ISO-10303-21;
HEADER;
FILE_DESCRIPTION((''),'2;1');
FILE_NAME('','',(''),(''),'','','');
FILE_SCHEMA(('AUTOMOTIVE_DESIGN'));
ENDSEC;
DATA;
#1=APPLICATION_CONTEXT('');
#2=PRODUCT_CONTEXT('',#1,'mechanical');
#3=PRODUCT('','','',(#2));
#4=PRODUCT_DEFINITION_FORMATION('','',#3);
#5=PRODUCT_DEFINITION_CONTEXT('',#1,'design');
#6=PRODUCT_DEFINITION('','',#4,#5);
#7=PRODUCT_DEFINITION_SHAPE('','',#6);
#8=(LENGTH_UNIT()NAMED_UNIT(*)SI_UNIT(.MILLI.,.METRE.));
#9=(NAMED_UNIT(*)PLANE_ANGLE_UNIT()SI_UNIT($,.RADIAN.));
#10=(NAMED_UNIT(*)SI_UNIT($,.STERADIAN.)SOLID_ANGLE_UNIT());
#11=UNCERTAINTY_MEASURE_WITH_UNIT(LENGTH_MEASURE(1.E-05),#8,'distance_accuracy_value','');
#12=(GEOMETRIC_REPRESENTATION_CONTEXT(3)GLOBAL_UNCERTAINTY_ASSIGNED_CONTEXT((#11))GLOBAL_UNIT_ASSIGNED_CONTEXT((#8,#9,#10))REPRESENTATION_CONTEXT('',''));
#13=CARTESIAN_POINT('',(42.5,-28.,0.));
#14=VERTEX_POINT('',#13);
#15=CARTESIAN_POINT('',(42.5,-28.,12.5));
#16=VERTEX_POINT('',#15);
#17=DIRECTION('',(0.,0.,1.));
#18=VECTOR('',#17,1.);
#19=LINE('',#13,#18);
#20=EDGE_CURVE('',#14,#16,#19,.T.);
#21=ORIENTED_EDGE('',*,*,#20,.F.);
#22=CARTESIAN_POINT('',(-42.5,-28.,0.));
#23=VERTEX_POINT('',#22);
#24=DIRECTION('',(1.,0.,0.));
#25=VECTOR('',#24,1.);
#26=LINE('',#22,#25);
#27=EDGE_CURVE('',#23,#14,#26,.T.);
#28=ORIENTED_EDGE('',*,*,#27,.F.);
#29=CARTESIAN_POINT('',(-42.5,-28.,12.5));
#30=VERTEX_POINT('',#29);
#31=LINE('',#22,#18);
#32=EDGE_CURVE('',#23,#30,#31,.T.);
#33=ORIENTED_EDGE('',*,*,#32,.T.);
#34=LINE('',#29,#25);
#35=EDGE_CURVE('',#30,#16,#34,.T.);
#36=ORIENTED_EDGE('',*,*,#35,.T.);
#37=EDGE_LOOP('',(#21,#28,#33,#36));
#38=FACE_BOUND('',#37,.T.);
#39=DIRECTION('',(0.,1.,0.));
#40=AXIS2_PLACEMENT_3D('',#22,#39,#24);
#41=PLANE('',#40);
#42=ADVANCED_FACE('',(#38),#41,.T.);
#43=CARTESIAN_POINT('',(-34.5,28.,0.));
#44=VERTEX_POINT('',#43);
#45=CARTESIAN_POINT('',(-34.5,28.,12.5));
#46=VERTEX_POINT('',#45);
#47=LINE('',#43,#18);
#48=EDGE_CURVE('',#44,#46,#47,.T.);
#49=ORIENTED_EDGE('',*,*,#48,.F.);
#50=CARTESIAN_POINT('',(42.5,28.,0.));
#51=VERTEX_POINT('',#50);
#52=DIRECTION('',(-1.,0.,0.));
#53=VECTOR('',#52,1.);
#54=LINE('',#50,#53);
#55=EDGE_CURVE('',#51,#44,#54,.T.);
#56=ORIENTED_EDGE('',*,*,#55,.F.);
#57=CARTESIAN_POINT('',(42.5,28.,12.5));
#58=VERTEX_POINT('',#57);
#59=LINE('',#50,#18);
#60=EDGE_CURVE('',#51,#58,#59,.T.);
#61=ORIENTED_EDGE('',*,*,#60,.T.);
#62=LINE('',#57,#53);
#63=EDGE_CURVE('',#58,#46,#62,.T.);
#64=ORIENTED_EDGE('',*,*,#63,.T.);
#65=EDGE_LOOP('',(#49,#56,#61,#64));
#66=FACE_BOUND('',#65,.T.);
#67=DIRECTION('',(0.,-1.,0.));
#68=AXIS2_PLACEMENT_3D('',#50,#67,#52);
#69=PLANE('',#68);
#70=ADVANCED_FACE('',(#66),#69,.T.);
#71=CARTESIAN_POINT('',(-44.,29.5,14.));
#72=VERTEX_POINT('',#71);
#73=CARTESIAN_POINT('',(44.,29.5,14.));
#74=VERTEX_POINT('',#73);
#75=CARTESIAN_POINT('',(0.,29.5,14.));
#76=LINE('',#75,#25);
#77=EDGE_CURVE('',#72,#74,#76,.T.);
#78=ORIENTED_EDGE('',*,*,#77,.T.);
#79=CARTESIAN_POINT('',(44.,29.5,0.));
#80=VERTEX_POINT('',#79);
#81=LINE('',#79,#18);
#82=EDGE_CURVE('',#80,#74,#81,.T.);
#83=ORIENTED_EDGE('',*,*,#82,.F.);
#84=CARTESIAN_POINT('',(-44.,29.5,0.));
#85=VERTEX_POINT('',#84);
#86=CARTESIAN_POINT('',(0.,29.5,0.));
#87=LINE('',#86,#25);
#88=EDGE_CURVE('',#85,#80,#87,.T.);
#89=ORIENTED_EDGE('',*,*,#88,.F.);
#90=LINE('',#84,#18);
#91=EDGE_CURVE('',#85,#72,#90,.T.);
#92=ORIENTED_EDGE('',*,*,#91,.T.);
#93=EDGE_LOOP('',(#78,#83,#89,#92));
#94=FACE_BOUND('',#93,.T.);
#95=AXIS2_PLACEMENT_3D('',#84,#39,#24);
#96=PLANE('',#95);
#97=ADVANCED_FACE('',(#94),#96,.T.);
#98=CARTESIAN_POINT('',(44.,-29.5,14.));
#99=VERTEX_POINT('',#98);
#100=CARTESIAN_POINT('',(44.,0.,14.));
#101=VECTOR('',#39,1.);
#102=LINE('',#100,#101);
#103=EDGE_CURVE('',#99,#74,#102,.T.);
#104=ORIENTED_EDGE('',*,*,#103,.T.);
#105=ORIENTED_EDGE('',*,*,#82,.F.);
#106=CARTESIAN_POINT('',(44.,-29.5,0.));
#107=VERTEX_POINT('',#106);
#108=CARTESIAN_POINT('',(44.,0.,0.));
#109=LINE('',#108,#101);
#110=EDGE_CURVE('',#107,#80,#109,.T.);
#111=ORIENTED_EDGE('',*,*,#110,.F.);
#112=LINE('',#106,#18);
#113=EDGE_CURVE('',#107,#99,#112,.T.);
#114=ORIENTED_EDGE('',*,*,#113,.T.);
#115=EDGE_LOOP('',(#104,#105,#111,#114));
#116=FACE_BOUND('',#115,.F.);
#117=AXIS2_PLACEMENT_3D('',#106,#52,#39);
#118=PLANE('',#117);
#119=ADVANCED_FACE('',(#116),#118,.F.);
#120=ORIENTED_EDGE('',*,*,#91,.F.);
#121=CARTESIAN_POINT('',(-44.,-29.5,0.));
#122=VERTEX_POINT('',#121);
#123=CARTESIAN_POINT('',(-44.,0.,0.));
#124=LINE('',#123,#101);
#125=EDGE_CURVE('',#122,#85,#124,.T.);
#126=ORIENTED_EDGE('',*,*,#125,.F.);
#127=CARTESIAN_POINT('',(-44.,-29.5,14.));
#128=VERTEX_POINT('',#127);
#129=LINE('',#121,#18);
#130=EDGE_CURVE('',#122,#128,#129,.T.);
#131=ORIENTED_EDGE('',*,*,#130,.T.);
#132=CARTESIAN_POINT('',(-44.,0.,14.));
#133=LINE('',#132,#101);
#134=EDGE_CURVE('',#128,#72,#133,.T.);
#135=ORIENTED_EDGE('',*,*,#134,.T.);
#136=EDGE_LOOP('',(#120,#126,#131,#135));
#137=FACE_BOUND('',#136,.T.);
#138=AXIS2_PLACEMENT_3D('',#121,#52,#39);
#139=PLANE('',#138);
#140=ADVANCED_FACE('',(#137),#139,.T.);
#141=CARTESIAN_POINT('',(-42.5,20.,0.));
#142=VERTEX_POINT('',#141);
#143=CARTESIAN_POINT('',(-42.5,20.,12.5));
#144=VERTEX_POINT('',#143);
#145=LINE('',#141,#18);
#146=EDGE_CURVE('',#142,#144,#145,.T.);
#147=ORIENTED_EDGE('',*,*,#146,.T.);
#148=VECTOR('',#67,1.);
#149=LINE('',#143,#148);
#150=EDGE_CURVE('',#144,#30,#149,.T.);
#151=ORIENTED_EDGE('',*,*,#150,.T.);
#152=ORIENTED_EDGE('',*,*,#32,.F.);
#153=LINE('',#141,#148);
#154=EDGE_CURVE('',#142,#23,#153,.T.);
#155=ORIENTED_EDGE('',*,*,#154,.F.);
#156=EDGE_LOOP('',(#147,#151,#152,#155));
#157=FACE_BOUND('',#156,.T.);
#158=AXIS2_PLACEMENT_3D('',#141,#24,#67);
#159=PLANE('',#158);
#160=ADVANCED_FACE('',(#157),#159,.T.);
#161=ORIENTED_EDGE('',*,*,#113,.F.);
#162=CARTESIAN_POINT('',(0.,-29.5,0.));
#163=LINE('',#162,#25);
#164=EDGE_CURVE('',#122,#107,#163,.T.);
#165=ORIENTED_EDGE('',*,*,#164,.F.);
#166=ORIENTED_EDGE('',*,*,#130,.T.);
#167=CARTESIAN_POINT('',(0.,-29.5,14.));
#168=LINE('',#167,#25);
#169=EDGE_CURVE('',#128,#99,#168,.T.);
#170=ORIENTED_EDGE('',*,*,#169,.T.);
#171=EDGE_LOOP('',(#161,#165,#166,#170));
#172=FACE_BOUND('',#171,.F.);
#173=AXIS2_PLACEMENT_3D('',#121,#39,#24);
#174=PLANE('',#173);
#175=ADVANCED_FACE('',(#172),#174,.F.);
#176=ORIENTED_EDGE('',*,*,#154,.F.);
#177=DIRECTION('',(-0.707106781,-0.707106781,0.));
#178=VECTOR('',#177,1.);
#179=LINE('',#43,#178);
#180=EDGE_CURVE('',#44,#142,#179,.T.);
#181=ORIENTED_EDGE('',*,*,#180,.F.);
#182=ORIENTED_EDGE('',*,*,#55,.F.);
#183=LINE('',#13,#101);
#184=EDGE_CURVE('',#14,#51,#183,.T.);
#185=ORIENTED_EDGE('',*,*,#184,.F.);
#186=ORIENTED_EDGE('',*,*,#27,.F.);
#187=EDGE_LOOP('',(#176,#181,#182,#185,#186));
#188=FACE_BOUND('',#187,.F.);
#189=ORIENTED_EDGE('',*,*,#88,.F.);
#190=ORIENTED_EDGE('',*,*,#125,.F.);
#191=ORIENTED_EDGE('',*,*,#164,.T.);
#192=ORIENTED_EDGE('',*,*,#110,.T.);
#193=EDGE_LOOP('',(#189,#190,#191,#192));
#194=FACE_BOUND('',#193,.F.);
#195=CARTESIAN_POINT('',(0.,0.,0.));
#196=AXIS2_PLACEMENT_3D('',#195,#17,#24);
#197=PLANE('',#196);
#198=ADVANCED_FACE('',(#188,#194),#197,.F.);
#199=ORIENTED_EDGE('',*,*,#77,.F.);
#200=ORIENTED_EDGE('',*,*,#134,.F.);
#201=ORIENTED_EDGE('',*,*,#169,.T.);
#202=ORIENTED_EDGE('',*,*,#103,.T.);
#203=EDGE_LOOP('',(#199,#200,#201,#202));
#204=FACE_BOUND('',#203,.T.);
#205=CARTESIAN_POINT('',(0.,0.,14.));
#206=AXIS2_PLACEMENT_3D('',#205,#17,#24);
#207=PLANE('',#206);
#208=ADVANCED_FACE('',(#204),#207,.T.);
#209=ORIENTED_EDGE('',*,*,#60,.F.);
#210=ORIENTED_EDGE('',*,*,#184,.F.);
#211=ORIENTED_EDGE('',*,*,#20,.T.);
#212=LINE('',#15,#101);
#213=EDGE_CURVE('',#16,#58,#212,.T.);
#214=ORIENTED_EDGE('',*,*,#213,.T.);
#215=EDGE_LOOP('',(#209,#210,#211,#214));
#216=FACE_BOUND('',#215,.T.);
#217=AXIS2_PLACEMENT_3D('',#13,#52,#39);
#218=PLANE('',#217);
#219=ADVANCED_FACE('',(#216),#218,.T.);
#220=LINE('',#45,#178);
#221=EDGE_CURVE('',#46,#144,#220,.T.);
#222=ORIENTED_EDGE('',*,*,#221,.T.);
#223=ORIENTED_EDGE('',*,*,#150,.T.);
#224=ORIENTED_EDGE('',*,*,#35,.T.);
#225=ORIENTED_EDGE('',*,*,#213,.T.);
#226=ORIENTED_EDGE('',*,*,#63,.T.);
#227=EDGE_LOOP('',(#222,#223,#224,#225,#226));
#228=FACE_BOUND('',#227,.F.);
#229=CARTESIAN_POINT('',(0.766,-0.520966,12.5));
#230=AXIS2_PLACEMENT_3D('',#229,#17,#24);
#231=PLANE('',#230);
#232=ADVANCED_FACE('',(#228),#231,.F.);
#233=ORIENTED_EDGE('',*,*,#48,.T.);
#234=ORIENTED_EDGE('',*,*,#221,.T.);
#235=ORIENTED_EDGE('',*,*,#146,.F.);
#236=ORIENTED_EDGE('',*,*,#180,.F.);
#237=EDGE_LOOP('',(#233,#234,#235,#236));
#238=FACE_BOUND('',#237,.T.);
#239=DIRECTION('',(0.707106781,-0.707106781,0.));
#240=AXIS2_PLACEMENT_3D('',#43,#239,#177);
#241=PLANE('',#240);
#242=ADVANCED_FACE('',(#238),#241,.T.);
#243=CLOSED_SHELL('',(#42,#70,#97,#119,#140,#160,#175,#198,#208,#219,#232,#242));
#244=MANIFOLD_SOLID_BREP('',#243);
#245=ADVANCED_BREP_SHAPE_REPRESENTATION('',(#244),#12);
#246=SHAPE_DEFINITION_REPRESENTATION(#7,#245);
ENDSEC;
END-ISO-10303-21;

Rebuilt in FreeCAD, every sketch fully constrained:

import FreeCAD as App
import Part
import Sketcher

doc = App.newDocument("Part")
body = doc.addObject("PartDesign::Body", "Body")

# Sketch on XY plane
sketch1 = body.newObject("Sketcher::SketchObject", "Sketch")
sketch1.AttachmentSupport = (doc.getObject("XY_Plane"), [""])
sketch1.MapMode = "FlatFace"
sketch1.addGeometry([
    Part.LineSegment(App.Vector(-44, 30, 0), App.Vector(-44, -30, 0)),
    Part.LineSegment(App.Vector(-44, -30, 0), App.Vector(44, -30, 0)),
    Part.LineSegment(App.Vector(44, -30, 0), App.Vector(44, 30, 0)),
    Part.LineSegment(App.Vector(44, 30, 0), App.Vector(-44, 30, 0)),
], False)
sketch1.addConstraint([
    Sketcher.Constraint("Coincident", 0, 2, 1, 1),
    Sketcher.Constraint("Coincident", 1, 2, 2, 1),
    Sketcher.Constraint("Coincident", 2, 2, 3, 1),
    Sketcher.Constraint("Coincident", 3, 2, 0, 1),
    Sketcher.Constraint("Vertical", 0),
    Sketcher.Constraint("Horizontal", 1),
    Sketcher.Constraint("Vertical", 2),
    Sketcher.Constraint("Horizontal", 3),
    Sketcher.Constraint("Symmetric", 0, 2, 2, 2, -1, 1),
    Sketcher.Constraint("DistanceX", 1, 1, 1, 2, 88.0),
    Sketcher.Constraint("DistanceY", 0, 2, 0, 1, 59.0),
])
pad1 = body.newObject("PartDesign::Pad", "Pad")
pad1.Profile = sketch1
pad1.Length = 14

# Sketch on XY plane
sketch2 = body.newObject("Sketcher::SketchObject", "Sketch001")
sketch2.AttachmentSupport = (doc.getObject("XY_Plane"), [""])
sketch2.MapMode = "FlatFace"
sketch2.addGeometry([
    Part.LineSegment(App.Vector(-42, -28, 0), App.Vector(42, -28, 0)),  # 0
    Part.LineSegment(App.Vector(42, -28, 0), App.Vector(42, 28, 0)),  # 1
    Part.LineSegment(App.Vector(42, 28, 0), App.Vector(-34, 28, 0)),  # 2
    Part.LineSegment(App.Vector(-34, 28, 0), App.Vector(-42, 20, 0)),  # 3
    Part.LineSegment(App.Vector(-42, 20, 0), App.Vector(-42, -28, 0)),  # 4
], False)
sketch2.addConstraint([
    Sketcher.Constraint("Coincident", 0, 2, 1, 1),
    Sketcher.Constraint("Coincident", 1, 2, 2, 1),
    Sketcher.Constraint("Coincident", 2, 2, 3, 1),
    Sketcher.Constraint("Coincident", 3, 2, 4, 1),
    Sketcher.Constraint("Coincident", 4, 2, 0, 1),
    Sketcher.Constraint("Horizontal", 0),
    Sketcher.Constraint("Vertical", 1),
    Sketcher.Constraint("Horizontal", 2),
    Sketcher.Constraint("Vertical", 4),
    Sketcher.Constraint("Symmetric", 1, 2, 4, 2, -1, 1),
    Sketcher.Constraint("DistanceX", 0, 1, 0, 2, 85.0),
    Sketcher.Constraint("DistanceX", 2, 2, 2, 1, 77.0),
    Sketcher.Constraint("DistanceY", 1, 1, 1, 2, 56.0),
    Sketcher.Constraint("DistanceY", 4, 2, 4, 1, 48.0),
])
pocket1 = body.newObject("PartDesign::Pocket", "Pocket")
pocket1.Profile = sketch2
pocket1.Length = 12.5
pocket1.Reversed = True

doc.recompute()
